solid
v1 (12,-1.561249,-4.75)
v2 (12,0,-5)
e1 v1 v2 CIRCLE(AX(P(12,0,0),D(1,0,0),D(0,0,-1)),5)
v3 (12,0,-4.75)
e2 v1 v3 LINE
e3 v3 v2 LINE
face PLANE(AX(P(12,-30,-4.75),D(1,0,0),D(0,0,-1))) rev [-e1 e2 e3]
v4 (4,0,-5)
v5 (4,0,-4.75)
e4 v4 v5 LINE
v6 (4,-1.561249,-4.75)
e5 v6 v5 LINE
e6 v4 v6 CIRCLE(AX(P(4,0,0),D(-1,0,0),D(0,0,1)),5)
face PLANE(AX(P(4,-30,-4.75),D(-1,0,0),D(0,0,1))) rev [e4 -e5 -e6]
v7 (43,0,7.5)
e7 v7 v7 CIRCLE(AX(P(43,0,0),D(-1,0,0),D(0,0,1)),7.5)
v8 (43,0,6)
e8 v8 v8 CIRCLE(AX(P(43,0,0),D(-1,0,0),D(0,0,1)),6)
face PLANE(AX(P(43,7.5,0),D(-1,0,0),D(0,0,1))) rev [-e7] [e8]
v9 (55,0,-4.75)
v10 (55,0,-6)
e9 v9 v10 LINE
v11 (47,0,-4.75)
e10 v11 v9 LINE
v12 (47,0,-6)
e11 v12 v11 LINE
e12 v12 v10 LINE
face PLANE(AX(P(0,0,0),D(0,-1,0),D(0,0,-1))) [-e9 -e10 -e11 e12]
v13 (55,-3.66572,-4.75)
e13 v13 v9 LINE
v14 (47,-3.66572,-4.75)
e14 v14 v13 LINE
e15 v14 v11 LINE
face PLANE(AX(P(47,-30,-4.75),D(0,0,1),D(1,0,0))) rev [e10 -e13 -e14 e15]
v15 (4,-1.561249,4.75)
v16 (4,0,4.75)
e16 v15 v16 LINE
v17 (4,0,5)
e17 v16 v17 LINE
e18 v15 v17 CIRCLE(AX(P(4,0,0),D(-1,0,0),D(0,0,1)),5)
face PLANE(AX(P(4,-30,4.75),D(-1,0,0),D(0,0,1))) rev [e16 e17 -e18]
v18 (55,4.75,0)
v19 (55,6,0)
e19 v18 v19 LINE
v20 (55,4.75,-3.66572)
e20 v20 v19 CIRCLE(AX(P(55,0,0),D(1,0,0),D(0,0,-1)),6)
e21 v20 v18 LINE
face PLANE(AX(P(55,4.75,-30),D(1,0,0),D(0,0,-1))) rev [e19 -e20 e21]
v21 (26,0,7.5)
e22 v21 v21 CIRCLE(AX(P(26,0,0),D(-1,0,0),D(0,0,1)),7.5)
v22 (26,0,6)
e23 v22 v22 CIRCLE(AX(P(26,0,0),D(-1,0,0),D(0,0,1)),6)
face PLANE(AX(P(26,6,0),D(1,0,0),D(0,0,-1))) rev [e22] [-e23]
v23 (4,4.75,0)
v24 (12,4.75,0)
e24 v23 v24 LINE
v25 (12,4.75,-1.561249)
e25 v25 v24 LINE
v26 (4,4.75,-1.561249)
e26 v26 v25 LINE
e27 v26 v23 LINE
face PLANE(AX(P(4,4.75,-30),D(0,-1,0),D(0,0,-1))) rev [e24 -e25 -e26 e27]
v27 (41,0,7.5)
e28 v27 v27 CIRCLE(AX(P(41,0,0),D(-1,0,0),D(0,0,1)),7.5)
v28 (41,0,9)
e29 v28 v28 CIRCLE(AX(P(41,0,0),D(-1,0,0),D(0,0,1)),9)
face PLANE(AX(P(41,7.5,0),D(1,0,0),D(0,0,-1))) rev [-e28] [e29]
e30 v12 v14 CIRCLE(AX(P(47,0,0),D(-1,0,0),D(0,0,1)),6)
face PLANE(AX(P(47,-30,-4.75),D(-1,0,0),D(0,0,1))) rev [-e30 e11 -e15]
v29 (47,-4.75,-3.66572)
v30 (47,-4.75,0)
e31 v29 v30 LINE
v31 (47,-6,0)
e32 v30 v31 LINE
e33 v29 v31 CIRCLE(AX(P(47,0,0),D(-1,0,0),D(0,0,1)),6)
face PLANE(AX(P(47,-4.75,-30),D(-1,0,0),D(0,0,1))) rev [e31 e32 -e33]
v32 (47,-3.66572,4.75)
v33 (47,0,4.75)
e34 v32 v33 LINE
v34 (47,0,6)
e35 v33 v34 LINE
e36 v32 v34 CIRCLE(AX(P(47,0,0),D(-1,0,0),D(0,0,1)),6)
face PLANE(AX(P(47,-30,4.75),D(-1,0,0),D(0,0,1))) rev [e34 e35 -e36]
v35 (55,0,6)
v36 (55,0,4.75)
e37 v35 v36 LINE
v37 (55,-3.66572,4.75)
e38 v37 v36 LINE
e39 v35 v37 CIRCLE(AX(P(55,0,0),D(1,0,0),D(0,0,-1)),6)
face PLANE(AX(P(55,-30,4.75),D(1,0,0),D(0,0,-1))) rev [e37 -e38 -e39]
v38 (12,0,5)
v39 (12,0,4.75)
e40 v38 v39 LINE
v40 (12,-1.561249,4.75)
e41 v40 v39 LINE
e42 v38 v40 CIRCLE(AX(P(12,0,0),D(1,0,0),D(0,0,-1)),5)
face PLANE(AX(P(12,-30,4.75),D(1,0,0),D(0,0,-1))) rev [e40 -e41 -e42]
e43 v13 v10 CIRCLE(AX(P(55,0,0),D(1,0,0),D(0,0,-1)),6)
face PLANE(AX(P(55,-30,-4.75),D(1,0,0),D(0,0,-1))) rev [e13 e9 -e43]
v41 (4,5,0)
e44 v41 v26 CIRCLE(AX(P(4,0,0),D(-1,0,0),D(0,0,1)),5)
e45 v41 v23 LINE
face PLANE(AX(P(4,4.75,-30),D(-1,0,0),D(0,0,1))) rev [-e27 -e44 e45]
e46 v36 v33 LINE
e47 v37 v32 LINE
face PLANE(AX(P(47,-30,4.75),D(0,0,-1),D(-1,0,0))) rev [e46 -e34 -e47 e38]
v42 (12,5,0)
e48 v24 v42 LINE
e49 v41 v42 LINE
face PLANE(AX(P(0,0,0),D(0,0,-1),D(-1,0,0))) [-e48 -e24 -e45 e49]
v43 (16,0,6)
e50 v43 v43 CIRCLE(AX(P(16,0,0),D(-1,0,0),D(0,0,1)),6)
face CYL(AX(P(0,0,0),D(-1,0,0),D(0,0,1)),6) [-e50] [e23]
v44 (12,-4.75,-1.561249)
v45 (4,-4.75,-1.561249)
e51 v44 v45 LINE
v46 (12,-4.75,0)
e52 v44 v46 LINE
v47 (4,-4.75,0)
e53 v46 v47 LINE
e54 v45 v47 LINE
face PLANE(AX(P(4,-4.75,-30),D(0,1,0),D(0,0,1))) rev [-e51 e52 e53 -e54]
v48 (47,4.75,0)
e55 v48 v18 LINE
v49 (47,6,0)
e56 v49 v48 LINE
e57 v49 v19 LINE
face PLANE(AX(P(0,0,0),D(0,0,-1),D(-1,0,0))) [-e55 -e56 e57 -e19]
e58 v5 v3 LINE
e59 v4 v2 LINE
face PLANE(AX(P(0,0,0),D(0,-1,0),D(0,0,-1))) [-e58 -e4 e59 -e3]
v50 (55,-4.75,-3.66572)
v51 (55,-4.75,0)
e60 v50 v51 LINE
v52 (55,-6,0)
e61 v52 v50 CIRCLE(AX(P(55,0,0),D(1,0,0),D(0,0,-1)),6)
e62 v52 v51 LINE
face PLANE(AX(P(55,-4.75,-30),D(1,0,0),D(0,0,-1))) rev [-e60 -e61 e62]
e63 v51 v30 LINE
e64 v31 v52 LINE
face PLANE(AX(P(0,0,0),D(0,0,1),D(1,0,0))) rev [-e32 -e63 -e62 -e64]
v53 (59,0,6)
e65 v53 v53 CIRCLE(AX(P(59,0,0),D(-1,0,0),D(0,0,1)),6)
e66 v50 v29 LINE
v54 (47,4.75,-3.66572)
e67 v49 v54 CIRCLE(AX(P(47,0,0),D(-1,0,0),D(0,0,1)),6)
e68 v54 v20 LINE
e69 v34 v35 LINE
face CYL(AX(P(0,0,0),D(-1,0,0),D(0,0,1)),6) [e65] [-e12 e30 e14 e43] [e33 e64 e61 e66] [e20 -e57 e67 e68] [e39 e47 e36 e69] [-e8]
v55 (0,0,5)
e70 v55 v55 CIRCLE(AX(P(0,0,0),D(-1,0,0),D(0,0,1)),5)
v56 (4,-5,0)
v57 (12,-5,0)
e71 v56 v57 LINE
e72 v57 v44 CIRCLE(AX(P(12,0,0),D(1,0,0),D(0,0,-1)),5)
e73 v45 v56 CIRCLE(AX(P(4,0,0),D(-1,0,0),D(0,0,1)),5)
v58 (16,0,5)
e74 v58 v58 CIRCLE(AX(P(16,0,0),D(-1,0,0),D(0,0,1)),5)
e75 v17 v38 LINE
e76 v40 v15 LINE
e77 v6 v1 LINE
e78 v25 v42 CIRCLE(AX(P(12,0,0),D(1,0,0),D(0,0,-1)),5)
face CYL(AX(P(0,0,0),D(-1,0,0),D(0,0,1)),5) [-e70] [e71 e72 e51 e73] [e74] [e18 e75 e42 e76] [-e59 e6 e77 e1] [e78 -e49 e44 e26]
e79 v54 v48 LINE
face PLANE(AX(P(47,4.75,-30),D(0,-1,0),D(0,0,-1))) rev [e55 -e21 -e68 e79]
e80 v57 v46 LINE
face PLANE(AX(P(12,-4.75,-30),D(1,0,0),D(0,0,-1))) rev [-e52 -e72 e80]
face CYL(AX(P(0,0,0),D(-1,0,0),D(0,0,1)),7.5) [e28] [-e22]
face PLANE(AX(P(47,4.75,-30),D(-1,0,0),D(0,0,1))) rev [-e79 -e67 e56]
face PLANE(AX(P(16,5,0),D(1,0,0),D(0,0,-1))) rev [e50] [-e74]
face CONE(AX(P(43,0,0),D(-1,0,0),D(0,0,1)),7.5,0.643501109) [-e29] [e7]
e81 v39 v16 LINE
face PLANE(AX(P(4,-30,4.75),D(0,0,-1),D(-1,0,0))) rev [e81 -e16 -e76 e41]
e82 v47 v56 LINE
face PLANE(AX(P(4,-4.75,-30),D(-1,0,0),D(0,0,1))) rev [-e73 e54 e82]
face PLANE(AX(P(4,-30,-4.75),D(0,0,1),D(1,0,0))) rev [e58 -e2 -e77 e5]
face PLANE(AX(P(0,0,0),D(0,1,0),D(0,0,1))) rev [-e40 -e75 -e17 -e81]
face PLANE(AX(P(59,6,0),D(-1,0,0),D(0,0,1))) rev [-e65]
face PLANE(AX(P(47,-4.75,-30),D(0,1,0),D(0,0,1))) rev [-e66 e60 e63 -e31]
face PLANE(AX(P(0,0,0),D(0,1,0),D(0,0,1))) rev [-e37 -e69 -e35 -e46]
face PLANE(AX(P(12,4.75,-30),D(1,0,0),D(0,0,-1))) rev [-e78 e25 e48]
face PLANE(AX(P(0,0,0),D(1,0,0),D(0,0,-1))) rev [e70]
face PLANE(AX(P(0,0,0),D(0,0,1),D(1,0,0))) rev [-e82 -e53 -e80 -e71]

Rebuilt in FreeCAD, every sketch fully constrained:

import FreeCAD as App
import Part
import Sketcher
from FreeCAD import Vector
Q = App.Units.Quantity


def add_polygon(sketch, points):
    """Adds a closed chain of lines whose ends are joined by coincident constraints."""
    first, n = sketch.GeometryCount, len(points)
    for a, b in zip(points, points[1:] + points[:1]):
        sketch.addGeometry(Part.LineSegment(App.Vector(*a, 0), App.Vector(*b, 0)), False)
    for i in range(n):
        sketch.addConstraint(Sketcher.Constraint("Coincident", first + i, 2, first + (i + 1) % n, 1))

doc = App.newDocument("Part")
body = doc.addObject("PartDesign::Body", "Body")

# Sketch on XY plane
sketch1 = body.newObject("Sketcher::SketchObject", "Sketch")
sketch1.AttachmentSupport = (doc.getObject("XY_Plane"), [""])
sketch1.MapMode = "FlatFace"
add_polygon(sketch1, [(0, 5), (0, 0), (59, 0), (59, 6), (43, 6), (43, 7.5), (41, 9), (41, 7.5), (26, 7.5), (26, 6), (16, 6), (16, 5)])  # lines 0-11
sketch1.addConstraint([
    Sketcher.Constraint("Vertical", 0),
    Sketcher.Constraint("Horizontal", 1),
    Sketcher.Constraint("Vertical", 2),
    Sketcher.Constraint("Horizontal", 3),
    Sketcher.Constraint("Vertical", 4),
    Sketcher.Constraint("Vertical", 6),
    Sketcher.Constraint("Horizontal", 7),
    Sketcher.Constraint("Vertical", 8),
    Sketcher.Constraint("Horizontal", 9),
    Sketcher.Constraint("Vertical", 10),
    Sketcher.Constraint("Horizontal", 11),
    Sketcher.Constraint("Coincident", 0, 2, -1, 1),
    Sketcher.Constraint("Horizontal", 4, 2, 6, 2),
    Sketcher.Constraint("Horizontal", 3, 2, 8, 2),
    Sketcher.Constraint("Equal", 3, 11),
    Sketcher.Constraint("Equal", 4, 6),
    Sketcher.Constraint("DistanceX", 1, 1, 1, 2, Q("59 mm")),
    Sketcher.Constraint("DistanceX", 3, 2, 3, 1, Q("16 mm")),
    Sketcher.Constraint("DistanceX", 7, 2, 7, 1, Q("15 mm")),
    Sketcher.Constraint("DistanceX", 9, 2, 9, 1, Q("10 mm")),
    Sketcher.Constraint("DistanceY", 0, 2, 0, 1, Q("5 mm")),
    Sketcher.Constraint("DistanceY", 2, 1, 2, 2, Q("6 mm")),
    Sketcher.Constraint("DistanceY", 4, 1, 4, 2, Q("1.5 mm")),
])
revolution = body.newObject("PartDesign::Revolution", "Revolution")
revolution.Profile = sketch1
revolution.ReferenceAxis = (sketch1, ["H_Axis"])
revolution.Angle = 360

# Sketch on XZ plane
sketch2 = body.newObject("Sketcher::SketchObject", "Sketch001")
sketch2.AttachmentSupport = (doc.getObject("XZ_Plane"), [""])
sketch2.MapMode = "FlatFace"
add_polygon(sketch2, [(4, -15), (4, -4.75), (12, -4.75), (12, -15)])  # lines 0-3
add_polygon(sketch2, [(4, 4.75), (4, 15), (12, 15), (12, 4.75)])  # lines 4-7
sketch2.addConstraint([
    Sketcher.Constraint("Vertical", 0),
    Sketcher.Constraint("Horizontal", 1),
    Sketcher.Constraint("Vertical", 2),
    Sketcher.Constraint("Horizontal", 3),
    Sketcher.Constraint("Vertical", 4),
    Sketcher.Constraint("Horizontal", 5),
    Sketcher.Constraint("Vertical", 6),
    Sketcher.Constraint("Horizontal", 7),
    Sketcher.Constraint("Symmetric", 3, 2, 4, 2, -1),
    Sketcher.Constraint("Symmetric", 1, 2, 6, 2, -1),
    Sketcher.Constraint("DistanceX", 1, 1, 1, 2, Q("8 mm")),
    Sketcher.Constraint("DistanceX", -1, 1, 0, 2, Q("4 mm")),
    Sketcher.Constraint("DistanceY", 2, 2, -1, 1, Q("15 mm")),
    Sketcher.Constraint("DistanceY", 0, 1, 0, 2, Q("10.25 mm")),
])
pocket1 = body.newObject("PartDesign::Pocket", "Pocket")
pocket1.Profile = sketch2
pocket1.Length = 30
pocket1.Reversed = True

# Sketch on XY plane
sketch3 = body.newObject("Sketcher::SketchObject", "Sketch002")
sketch3.AttachmentSupport = (doc.getObject("XY_Plane"), [""])
sketch3.MapMode = "FlatFace"
add_polygon(sketch3, [(4, 15), (4, 4.75), (12, 4.75), (12, 15)])  # lines 0-3
add_polygon(sketch3, [(4, -4.75), (4, -15), (12, -15), (12, -4.75)])  # lines 4-7
sketch3.addConstraint([
    Sketcher.Constraint("Vertical", 0),
    Sketcher.Constraint("Horizontal", 1),
    Sketcher.Constraint("Vertical", 2),
    Sketcher.Constraint("Horizontal", 3),
    Sketcher.Constraint("Vertical", 4),
    Sketcher.Constraint("Horizontal", 5),
    Sketcher.Constraint("Vertical", 6),
    Sketcher.Constraint("Horizontal", 7),
    Sketcher.Constraint("Symmetric", 3, 2, 4, 2, -1),
    Sketcher.Constraint("Symmetric", 1, 2, 6, 2, -1),
    Sketcher.Constraint("DistanceX", 1, 1, 1, 2, Q("8 mm")),
    Sketcher.Constraint("DistanceX", -1, 1, 0, 2, Q("4 mm")),
    Sketcher.Constraint("DistanceY", -1, 1, 2, 2, Q("15 mm")),
    Sketcher.Constraint("DistanceY", 0, 2, 0, 1, Q("10.25 mm")),
])
pocket2 = body.newObject("PartDesign::Pocket", "Pocket001")
pocket2.Profile = sketch3
pocket2.Length = 30

# Sketch on XZ plane
sketch4 = body.newObject("Sketcher::SketchObject", "Sketch003")
sketch4.AttachmentSupport = (doc.getObject("XZ_Plane"), [""])
sketch4.MapMode = "FlatFace"
add_polygon(sketch4, [(47, -15), (47, -4.75), (55, -4.75), (55, -15)])  # lines 0-3
add_polygon(sketch4, [(47, 4.75), (47, 15), (55, 15), (55, 4.75)])  # lines 4-7
sketch4.addConstraint([
    Sketcher.Constraint("Vertical", 0),
    Sketcher.Constraint("Horizontal", 1),
    Sketcher.Constraint("Vertical", 2),
    Sketcher.Constraint("Horizontal", 3),
    Sketcher.Constraint("Vertical", 4),
    Sketcher.Constraint("Horizontal", 5),
    Sketcher.Constraint("Vertical", 6),
    Sketcher.Constraint("Horizontal", 7),
    Sketcher.Constraint("Symmetric", 3, 2, 4, 2, -1),
    Sketcher.Constraint("Symmetric", 1, 2, 6, 2, -1),
    Sketcher.Constraint("DistanceX", 1, 1, 1, 2, Q("8 mm")),
    Sketcher.Constraint("DistanceX", -1, 1, 0, 2, Q("47 mm")),
    Sketcher.Constraint("DistanceY", 2, 2, -1, 1, Q("15 mm")),
    Sketcher.Constraint("DistanceY", 0, 1, 0, 2, Q("10.25 mm")),
])
pocket3 = body.newObject("PartDesign::Pocket", "Pocket002")
pocket3.Profile = sketch4
pocket3.Length = 30
pocket3.Reversed = True

# Sketch on XY plane
sketch5 = body.newObject("Sketcher::SketchObject", "Sketch004")
sketch5.AttachmentSupport = (doc.getObject("XY_Plane"), [""])
sketch5.MapMode = "FlatFace"
add_polygon(sketch5, [(47, 15), (47, 4.75), (55, 4.75), (55, 15)])  # lines 0-3
add_polygon(sketch5, [(47, -4.75), (47, -15), (55, -15), (55, -4.75)])  # lines 4-7
sketch5.addConstraint([
    Sketcher.Constraint("Vertical", 0),
    Sketcher.Constraint("Horizontal", 1),
    Sketcher.Constraint("Vertical", 2),
    Sketcher.Constraint("Horizontal", 3),
    Sketcher.Constraint("Vertical", 4),
    Sketcher.Constraint("Horizontal", 5),
    Sketcher.Constraint("Vertical", 6),
    Sketcher.Constraint("Horizontal", 7),
    Sketcher.Constraint("Symmetric", 3, 2, 4, 2, -1),
    Sketcher.Constraint("Symmetric", 1, 2, 6, 2, -1),
    Sketcher.Constraint("DistanceX", 1, 1, 1, 2, Q("8 mm")),
    Sketcher.Constraint("DistanceX", -1, 1, 0, 2, Q("47 mm")),
    Sketcher.Constraint("DistanceY", -1, 1, 2, 2, Q("15 mm")),
    Sketcher.Constraint("DistanceY", 0, 2, 0, 1, Q("10.25 mm")),
])
pocket4 = body.newObject("PartDesign::Pocket", "Pocket003")
pocket4.Profile = sketch5
pocket4.Length = 30

doc.recompute()
